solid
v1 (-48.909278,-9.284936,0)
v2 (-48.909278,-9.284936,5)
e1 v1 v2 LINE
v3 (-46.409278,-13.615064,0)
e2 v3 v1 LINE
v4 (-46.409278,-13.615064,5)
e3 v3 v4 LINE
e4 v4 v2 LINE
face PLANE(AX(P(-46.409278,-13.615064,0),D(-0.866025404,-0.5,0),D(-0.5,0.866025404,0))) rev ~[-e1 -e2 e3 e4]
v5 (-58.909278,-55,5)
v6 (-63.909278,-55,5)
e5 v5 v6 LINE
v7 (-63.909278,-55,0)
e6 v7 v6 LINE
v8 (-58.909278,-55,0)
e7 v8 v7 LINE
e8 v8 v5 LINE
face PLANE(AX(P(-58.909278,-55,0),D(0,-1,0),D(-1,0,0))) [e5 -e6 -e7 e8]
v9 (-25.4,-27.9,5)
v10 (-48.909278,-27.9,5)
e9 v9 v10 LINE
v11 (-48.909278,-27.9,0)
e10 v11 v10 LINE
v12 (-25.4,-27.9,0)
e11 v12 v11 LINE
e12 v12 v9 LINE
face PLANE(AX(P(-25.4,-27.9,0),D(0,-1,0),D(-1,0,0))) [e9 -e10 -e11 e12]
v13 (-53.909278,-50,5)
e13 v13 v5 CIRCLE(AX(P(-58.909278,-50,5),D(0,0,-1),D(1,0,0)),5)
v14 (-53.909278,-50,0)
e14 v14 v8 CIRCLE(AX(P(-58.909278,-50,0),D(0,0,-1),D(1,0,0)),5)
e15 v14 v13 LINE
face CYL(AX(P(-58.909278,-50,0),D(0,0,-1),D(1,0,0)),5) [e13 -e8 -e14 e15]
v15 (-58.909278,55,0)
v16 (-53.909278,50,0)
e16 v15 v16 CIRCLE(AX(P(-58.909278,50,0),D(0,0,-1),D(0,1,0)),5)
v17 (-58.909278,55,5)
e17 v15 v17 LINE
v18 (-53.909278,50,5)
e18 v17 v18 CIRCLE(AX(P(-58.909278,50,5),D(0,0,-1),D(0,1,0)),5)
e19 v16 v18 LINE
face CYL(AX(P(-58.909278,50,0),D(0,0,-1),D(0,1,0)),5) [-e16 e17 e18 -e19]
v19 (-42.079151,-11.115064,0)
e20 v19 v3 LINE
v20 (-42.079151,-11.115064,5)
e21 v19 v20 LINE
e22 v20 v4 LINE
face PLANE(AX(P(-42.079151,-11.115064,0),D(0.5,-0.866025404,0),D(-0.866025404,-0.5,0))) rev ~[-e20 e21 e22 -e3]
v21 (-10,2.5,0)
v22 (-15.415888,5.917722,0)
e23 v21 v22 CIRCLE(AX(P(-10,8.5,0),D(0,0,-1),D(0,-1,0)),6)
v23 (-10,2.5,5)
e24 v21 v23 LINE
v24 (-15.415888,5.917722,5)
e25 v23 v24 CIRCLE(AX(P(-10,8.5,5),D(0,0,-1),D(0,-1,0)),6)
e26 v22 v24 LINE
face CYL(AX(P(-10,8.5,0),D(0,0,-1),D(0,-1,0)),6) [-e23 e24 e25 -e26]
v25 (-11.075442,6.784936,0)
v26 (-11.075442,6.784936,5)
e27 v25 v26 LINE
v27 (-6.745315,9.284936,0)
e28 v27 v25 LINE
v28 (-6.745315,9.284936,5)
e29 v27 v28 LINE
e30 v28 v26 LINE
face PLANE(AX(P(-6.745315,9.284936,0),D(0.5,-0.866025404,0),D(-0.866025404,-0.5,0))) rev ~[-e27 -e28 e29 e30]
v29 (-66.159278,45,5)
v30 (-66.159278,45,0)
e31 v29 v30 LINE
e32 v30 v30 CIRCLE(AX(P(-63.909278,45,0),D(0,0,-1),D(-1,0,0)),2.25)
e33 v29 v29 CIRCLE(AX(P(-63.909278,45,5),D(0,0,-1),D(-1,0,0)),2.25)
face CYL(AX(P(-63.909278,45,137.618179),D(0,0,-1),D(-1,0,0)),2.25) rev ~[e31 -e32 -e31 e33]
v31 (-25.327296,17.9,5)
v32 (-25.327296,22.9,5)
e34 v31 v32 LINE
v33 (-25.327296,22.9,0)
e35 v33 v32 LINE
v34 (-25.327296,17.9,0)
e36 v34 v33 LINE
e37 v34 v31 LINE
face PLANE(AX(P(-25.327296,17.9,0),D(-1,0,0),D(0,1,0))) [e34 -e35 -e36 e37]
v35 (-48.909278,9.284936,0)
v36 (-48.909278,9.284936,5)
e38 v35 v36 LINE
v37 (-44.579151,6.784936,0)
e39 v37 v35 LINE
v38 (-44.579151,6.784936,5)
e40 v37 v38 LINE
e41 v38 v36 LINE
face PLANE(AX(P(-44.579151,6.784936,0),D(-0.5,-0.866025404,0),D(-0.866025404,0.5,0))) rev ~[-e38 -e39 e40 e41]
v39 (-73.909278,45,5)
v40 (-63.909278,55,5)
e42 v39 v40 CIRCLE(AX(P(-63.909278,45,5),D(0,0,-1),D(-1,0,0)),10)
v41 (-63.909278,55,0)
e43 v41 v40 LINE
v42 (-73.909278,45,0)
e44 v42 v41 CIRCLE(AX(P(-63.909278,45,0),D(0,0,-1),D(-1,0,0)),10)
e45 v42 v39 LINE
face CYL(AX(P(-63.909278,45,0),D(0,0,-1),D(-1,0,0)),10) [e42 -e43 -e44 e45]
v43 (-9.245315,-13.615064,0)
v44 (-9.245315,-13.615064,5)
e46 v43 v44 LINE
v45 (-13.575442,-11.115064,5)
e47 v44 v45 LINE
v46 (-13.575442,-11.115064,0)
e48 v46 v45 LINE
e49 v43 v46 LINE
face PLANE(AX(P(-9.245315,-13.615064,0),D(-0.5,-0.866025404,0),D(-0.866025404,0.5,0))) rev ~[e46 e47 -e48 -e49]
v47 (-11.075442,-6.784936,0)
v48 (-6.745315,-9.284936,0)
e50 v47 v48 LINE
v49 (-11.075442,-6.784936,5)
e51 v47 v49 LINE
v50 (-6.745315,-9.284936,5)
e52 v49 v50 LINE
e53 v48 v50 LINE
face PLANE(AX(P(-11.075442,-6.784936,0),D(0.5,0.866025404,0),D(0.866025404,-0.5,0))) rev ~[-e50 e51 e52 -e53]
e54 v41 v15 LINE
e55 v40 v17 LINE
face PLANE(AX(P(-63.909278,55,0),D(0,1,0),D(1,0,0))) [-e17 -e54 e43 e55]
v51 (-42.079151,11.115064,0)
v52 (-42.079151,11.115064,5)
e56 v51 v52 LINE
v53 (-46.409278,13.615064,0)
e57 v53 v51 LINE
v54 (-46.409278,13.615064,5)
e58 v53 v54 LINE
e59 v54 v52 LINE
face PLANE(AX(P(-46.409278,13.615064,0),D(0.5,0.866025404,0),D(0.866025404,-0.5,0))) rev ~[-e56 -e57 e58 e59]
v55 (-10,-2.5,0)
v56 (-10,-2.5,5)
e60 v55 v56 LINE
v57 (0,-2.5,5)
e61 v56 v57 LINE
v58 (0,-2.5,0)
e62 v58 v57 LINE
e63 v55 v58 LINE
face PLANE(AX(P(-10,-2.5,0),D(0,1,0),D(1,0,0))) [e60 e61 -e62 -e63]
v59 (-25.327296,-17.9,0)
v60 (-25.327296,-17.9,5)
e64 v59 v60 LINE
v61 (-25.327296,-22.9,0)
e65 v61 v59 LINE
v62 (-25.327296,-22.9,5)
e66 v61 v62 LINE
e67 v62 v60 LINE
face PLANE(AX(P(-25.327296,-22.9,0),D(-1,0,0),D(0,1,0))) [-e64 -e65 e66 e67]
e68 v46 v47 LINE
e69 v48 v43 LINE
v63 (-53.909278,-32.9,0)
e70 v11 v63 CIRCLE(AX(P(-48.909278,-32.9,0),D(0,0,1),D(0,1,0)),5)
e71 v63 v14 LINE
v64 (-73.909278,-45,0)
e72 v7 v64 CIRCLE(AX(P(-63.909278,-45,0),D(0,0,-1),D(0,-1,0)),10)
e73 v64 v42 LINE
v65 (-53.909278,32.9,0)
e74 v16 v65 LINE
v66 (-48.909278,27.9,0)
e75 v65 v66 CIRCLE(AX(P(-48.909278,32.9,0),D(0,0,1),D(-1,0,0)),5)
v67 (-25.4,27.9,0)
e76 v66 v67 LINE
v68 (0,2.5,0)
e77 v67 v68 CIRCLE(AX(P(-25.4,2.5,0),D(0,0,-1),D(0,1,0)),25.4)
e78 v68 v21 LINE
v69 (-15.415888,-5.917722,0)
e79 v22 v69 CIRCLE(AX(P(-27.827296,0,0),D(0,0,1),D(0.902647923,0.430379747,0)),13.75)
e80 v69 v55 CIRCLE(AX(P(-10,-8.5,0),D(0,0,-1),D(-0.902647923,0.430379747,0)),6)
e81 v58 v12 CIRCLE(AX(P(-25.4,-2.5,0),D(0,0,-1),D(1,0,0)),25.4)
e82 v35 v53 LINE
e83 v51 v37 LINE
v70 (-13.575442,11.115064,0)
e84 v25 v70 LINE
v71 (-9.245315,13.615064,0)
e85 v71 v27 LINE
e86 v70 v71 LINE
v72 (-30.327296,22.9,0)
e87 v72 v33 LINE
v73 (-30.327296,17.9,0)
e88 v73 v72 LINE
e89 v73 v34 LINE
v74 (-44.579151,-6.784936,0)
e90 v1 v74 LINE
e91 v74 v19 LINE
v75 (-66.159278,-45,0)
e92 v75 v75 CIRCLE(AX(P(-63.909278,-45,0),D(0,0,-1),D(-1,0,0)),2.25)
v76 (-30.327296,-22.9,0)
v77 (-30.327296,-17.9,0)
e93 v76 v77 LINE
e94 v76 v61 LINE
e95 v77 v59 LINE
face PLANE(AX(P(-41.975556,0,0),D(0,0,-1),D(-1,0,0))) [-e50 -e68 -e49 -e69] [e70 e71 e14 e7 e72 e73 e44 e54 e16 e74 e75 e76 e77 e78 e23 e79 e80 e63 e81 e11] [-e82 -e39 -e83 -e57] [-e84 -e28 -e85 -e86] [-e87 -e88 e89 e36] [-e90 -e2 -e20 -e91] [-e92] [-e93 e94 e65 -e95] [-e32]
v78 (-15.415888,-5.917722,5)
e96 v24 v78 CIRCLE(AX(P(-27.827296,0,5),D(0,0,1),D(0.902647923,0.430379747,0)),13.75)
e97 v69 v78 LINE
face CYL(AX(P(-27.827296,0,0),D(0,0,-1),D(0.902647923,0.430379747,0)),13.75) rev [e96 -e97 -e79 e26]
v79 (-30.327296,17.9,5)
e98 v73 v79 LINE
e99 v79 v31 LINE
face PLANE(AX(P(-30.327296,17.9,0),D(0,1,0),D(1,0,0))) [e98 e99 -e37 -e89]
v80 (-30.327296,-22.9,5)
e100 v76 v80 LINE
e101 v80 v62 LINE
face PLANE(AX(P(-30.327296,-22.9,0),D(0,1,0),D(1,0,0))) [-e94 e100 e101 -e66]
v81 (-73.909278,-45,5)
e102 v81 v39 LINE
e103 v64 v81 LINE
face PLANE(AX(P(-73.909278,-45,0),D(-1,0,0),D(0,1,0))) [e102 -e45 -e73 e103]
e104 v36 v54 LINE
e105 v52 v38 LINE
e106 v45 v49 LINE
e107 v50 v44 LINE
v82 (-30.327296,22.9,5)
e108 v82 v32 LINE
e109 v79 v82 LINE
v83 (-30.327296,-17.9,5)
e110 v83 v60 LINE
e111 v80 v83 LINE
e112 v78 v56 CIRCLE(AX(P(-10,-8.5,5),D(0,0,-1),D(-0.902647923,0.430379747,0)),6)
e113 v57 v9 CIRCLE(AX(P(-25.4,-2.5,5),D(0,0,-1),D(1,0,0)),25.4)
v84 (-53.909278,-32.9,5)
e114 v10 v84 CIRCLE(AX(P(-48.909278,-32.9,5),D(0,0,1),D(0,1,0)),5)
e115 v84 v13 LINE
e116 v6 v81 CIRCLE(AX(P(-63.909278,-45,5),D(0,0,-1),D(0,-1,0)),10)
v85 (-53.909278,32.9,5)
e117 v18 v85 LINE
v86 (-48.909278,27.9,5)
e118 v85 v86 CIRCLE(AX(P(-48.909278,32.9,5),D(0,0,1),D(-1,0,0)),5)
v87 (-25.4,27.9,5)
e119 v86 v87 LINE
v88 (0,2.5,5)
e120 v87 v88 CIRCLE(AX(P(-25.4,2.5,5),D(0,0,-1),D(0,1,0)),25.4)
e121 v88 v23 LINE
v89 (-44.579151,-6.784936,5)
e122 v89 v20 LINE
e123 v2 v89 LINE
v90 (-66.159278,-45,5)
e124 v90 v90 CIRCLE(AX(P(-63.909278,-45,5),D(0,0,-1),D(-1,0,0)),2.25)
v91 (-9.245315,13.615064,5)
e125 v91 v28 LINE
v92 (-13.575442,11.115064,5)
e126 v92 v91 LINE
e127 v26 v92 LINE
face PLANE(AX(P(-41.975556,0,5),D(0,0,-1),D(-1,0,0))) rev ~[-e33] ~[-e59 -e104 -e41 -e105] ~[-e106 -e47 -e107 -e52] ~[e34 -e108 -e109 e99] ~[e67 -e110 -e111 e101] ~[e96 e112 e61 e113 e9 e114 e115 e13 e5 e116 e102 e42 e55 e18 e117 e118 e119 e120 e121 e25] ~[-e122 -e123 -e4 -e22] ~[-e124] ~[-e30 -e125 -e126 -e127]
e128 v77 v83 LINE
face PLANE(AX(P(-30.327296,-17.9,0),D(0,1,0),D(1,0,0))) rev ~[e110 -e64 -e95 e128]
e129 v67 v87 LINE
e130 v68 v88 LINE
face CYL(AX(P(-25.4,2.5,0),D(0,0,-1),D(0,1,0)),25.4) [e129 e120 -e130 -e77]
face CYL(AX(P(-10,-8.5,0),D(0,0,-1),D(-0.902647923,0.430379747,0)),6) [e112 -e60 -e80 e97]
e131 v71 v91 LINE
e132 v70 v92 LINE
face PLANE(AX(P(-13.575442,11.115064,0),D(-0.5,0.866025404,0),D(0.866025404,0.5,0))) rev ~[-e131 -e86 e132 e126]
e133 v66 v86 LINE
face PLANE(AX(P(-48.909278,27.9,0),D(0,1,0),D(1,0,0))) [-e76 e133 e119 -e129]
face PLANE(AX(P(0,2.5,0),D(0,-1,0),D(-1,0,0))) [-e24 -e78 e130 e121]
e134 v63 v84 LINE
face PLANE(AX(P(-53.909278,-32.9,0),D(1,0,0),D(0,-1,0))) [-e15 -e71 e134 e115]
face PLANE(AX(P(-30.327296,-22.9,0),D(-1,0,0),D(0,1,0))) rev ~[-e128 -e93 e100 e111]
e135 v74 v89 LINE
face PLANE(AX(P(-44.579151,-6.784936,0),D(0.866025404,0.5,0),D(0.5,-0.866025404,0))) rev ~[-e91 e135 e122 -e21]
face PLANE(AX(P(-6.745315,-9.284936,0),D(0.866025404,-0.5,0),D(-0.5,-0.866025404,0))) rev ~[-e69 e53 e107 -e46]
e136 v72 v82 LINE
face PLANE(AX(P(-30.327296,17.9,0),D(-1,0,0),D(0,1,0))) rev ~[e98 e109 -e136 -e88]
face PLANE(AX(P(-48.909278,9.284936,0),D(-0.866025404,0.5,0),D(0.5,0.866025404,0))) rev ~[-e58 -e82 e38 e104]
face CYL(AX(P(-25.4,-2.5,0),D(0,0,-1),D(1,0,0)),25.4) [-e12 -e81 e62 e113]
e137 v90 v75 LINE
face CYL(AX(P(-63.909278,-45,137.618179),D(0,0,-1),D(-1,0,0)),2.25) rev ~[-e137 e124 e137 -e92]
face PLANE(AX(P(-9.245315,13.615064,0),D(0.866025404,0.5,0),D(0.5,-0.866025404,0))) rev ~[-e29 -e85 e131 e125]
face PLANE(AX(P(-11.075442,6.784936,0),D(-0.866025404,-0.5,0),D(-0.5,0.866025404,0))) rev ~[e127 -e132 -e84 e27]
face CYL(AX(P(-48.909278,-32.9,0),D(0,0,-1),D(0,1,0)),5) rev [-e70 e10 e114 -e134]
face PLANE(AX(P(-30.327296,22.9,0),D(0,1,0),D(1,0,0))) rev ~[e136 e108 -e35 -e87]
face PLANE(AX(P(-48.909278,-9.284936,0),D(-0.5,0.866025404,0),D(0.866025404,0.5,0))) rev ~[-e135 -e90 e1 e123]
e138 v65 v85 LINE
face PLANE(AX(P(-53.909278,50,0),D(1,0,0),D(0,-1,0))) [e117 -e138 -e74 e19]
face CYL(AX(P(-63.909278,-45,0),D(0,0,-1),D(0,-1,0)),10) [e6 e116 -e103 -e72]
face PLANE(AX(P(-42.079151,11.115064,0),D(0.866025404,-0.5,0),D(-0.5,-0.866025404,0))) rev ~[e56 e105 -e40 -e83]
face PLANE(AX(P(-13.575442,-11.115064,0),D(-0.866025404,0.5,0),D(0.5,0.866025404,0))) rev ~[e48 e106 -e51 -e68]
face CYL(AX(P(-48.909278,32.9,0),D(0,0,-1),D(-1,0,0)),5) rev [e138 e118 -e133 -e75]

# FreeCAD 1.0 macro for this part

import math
import FreeCAD as App
import Part
import Sketcher
from FreeCAD import Vector
Q = App.Units.Quantity


def add_polygon(sketch, points):
    """Adds a closed chain of lines whose ends are joined by coincident constraints."""
    first, n = sketch.GeometryCount, len(points)
    for a, b in zip(points, points[1:] + points[:1]):
        sketch.addGeometry(Part.LineSegment(App.Vector(*a, 0), App.Vector(*b, 0)), False)
    for i in range(n):
        sketch.addConstraint(Sketcher.Constraint("Coincident", first + i, 2, first + (i + 1) % n, 1))

doc = App.newDocument("Part")
body = doc.addObject("PartDesign::Body", "Body")

# Sketch on XY plane
sketch1 = body.newObject("Sketcher::SketchObject", "Sketch")
sketch1.AttachmentSupport = (doc.getObject("XY_Plane"), [""])
sketch1.MapMode = "FlatFace"
sketch1.addGeometry(Part.LineSegment(Vector(-63.909278, -55, 0), Vector(-58.909278, -55, 0)), False)  # 0
sketch1.addGeometry(Part.ArcOfCircle(Part.Circle(Vector(-58.909278, -50, 0), Vector(0, 0, 1), 5), math.radians(-90), math.radians(0)), False)  # 1
sketch1.addGeometry(Part.LineSegment(Vector(-53.909278, -50, 0), Vector(-53.909278, -32.9, 0)), False)  # 2
sketch1.addGeometry(Part.ArcOfCircle(Part.Circle(Vector(-48.909278, -32.9, 0), Vector(0, 0, 1), 5), math.radians(90), math.radians(180)), False)  # 3
sketch1.addGeometry(Part.LineSegment(Vector(-48.909278, -27.9, 0), Vector(-25.4, -27.9, 0)), False)  # 4
sketch1.addGeometry(Part.ArcOfCircle(Part.Circle(Vector(-25.4, -2.5, 0), Vector(0, 0, 1), 25.4), math.radians(-90), math.radians(0)), False)  # 5
sketch1.addGeometry(Part.LineSegment(Vector(0, -2.5, 0), Vector(-10, -2.5, 0)), False)  # 6
sketch1.addGeometry(Part.ArcOfCircle(Part.Circle(Vector(-10, -8.5, 0), Vector(0, 0, 1), 6), math.radians(90), math.radians(154.508338)), False)  # 7
sketch1.addGeometry(Part.ArcOfCircle(Part.Circle(Vector(-27.827296, 0, 0), Vector(0, 0, 1), 13.75), math.radians(25.491662), math.radians(334.508338)), False)  # 8
sketch1.addGeometry(Part.ArcOfCircle(Part.Circle(Vector(-10, 8.5, 0), Vector(0, 0, 1), 6), math.radians(-154.508338), math.radians(-90)), False)  # 9
sketch1.addGeometry(Part.LineSegment(Vector(-10, 2.5, 0), Vector(0, 2.5, 0)), False)  # 10
sketch1.addGeometry(Part.ArcOfCircle(Part.Circle(Vector(-25.4, 2.5, 0), Vector(0, 0, 1), 25.4), math.radians(0), math.radians(90)), False)  # 11
sketch1.addGeometry(Part.LineSegment(Vector(-25.4, 27.9, 0), Vector(-48.909278, 27.9, 0)), False)  # 12
sketch1.addGeometry(Part.ArcOfCircle(Part.Circle(Vector(-48.909278, 32.9, 0), Vector(0, 0, 1), 5), math.radians(180), math.radians(270)), False)  # 13
sketch1.addGeometry(Part.LineSegment(Vector(-53.909278, 32.9, 0), Vector(-53.909278, 50, 0)), False)  # 14
sketch1.addGeometry(Part.ArcOfCircle(Part.Circle(Vector(-58.909278, 50, 0), Vector(0, 0, 1), 5), math.radians(0), math.radians(90)), False)  # 15
sketch1.addGeometry(Part.LineSegment(Vector(-58.909278, 55, 0), Vector(-63.909278, 55, 0)), False)  # 16
sketch1.addGeometry(Part.ArcOfCircle(Part.Circle(Vector(-63.909278, 45, 0), Vector(0, 0, 1), 10), math.radians(90), math.radians(180)), False)  # 17
sketch1.addGeometry(Part.LineSegment(Vector(-73.909278, 45, 0), Vector(-73.909278, -45, 0)), False)  # 18
sketch1.addGeometry(Part.ArcOfCircle(Part.Circle(Vector(-63.909278, -45, 0), Vector(0, 0, 1), 10), math.radians(180), math.radians(270)), False)  # 19
add_polygon(sketch1, [(-6.745315, -9.284936), (-9.245315, -13.615064), (-13.575442, -11.115064), (-11.075442, -6.784936)])  # lines 20-23
add_polygon(sketch1, [(-30.327296, -22.9), (-30.327296, -17.9), (-25.327296, -17.9), (-25.327296, -22.9)])  # lines 24-27
add_polygon(sketch1, [(-46.409278, -13.615064), (-48.909278, -9.284936), (-44.579151, -6.784936), (-42.079151, -11.115064)])  # lines 28-31
add_polygon(sketch1, [(-9.245315, 13.615064), (-6.745315, 9.284936), (-11.075442, 6.784936), (-13.575442, 11.115064)])  # lines 32-35
add_polygon(sketch1, [(-48.909278, 9.284936), (-46.409278, 13.615064), (-42.079151, 11.115064), (-44.579151, 6.784936)])  # lines 36-39
add_polygon(sketch1, [(-30.327296, 17.9), (-30.327296, 22.9), (-25.327296, 22.9), (-25.327296, 17.9)])  # lines 40-43
sketch1.addConstraint(Sketcher.Constraint("Tangent", 0, 2, 1, 1))
sketch1.addConstraint(Sketcher.Constraint("Tangent", 1, 2, 2, 1))
sketch1.addConstraint(Sketcher.Constraint("Tangent", 2, 2, 3, 2))
sketch1.addConstraint(Sketcher.Constraint("Tangent", 3, 1, 4, 1))
sketch1.addConstraint(Sketcher.Constraint("Tangent", 4, 2, 5, 1))
sketch1.addConstraint(Sketcher.Constraint("Coincident", 5, 2, 6, 1))
sketch1.addConstraint(Sketcher.Constraint("Tangent", 6, 2, 7, 1))
sketch1.addConstraint(Sketcher.Constraint("Tangent", 7, 2, 8, 2))
sketch1.addConstraint(Sketcher.Constraint("Tangent", 8, 1, 9, 1))
sketch1.addConstraint(Sketcher.Constraint("Tangent", 9, 2, 10, 1))
sketch1.addConstraint(Sketcher.Constraint("Coincident", 10, 2, 11, 1))
sketch1.addConstraint(Sketcher.Constraint("Tangent", 11, 2, 12, 1))
sketch1.addConstraint(Sketcher.Constraint("Tangent", 12, 2, 13, 2))
sketch1.addConstraint(Sketcher.Constraint("Tangent", 13, 1, 14, 1))
sketch1.addConstraint(Sketcher.Constraint("Tangent", 14, 2, 15, 1))
sketch1.addConstraint(Sketcher.Constraint("Tangent", 15, 2, 16, 1))
sketch1.addConstraint(Sketcher.Constraint("Tangent", 16, 2, 17, 1))
sketch1.addConstraint(Sketcher.Constraint("Tangent", 17, 2, 18, 1))
sketch1.addConstraint(Sketcher.Constraint("Tangent", 18, 2, 19, 1))
sketch1.addConstraint(Sketcher.Constraint("Tangent", 19, 2, 0, 1))
sketch1.addConstraint(Sketcher.Constraint("Horizontal", 0))
sketch1.addConstraint(Sketcher.Constraint("Vertical", 2))
sketch1.addConstraint(Sketcher.Constraint("Horizontal", 4))
sketch1.addConstraint(Sketcher.Constraint("Horizontal", 6))
sketch1.addConstraint(Sketcher.Constraint("Horizontal", 10))
sketch1.addConstraint(Sketcher.Constraint("Horizontal", 12))
sketch1.addConstraint(Sketcher.Constraint("Vertical", 14))
sketch1.addConstraint(Sketcher.Constraint("Horizontal", 16))
sketch1.addConstraint(Sketcher.Constraint("Vertical", 18))
sketch1.addConstraint(Sketcher.Constraint("Vertical", 24))
sketch1.addConstraint(Sketcher.Constraint("Horizontal", 25))
sketch1.addConstraint(Sketcher.Constraint("Vertical", 26))
sketch1.addConstraint(Sketcher.Constraint("Horizontal", 27))
sketch1.addConstraint(Sketcher.Constraint("Vertical", 40))
sketch1.addConstraint(Sketcher.Constraint("Horizontal", 41))
sketch1.addConstraint(Sketcher.Constraint("Vertical", 42))
sketch1.addConstraint(Sketcher.Constraint("Horizontal", 43))
sketch1.addConstraint(Sketcher.Constraint("Equal", 1, 3))
sketch1.addConstraint(Sketcher.Constraint("Equal", 7, 9))
sketch1.addConstraint(Sketcher.Constraint("Equal", 5, 11))
sketch1.addConstraint(Sketcher.Constraint("Equal", 3, 13))
sketch1.addConstraint(Sketcher.Constraint("Equal", 13, 15))
sketch1.addConstraint(Sketcher.Constraint("Equal", 17, 19))
sketch1.addConstraint(Sketcher.Constraint("Symmetric", 5, 2, 10, 2, -1, 1))
sketch1.addConstraint(Sketcher.Constraint("Symmetric", 5, 3, 11, 3, -1))
sketch1.addConstraint(Sketcher.Constraint("Symmetric", 1, 3, 15, 3, -1))
sketch1.addConstraint(Sketcher.Constraint("Symmetric", 23, 2, 32, 2, -1))
sketch1.addConstraint(Sketcher.Constraint("Symmetric", 22, 2, 33, 2, -1))
sketch1.addConstraint(Sketcher.Constraint("Symmetric", 21, 2, 34, 2, -1))
sketch1.addConstraint(Sketcher.Constraint("Symmetric", 20, 2, 35, 2, -1))
sketch1.addConstraint(Sketcher.Constraint("Symmetric", 31, 2, 36, 2, -1))
sketch1.addConstraint(Sketcher.Constraint("Symmetric", 30, 2, 37, 2, -1))
sketch1.addConstraint(Sketcher.Constraint("Symmetric", 29, 2, 38, 2, -1))
sketch1.addConstraint(Sketcher.Constraint("Symmetric", 28, 2, 39, 2, -1))
sketch1.addConstraint(Sketcher.Constraint("Symmetric", 27, 2, 40, 2, -1))
sketch1.addConstraint(Sketcher.Constraint("Symmetric", 25, 2, 42, 2, -1))
sketch1.addConstraint(Sketcher.Constraint("PointOnObject", 8, 3, -1))
sketch1.addConstraint(Sketcher.Constraint("Perpendicular", 20, 21))
sketch1.addConstraint(Sketcher.Constraint("Perpendicular", 21, 22))
sketch1.addConstraint(Sketcher.Constraint("Perpendicular", 22, 23))
sketch1.addConstraint(Sketcher.Constraint("Perpendicular", 28, 29))
sketch1.addConstraint(Sketcher.Constraint("Perpendicular", 29, 30))
sketch1.addConstraint(Sketcher.Constraint("Perpendicular", 30, 31))
sketch1.addConstraint(Sketcher.Constraint("Perpendicular", 31, 32))
sketch1.addConstraint(Sketcher.Constraint("Horizontal", 11, 3, 9, 2))
sketch1.addConstraint(Sketcher.Constraint("Horizontal", 23, 2, 28, 2))
sketch1.addConstraint(Sketcher.Constraint("Horizontal", 22, 2, 29, 2))
sketch1.addConstraint(Sketcher.Constraint("Horizontal", 21, 2, 30, 2))
sketch1.addConstraint(Sketcher.Constraint("Vertical", 12, 2, 28, 2))
sketch1.addConstraint(Sketcher.Constraint("Equal", 16, 25))
sketch1.addConstraint(Sketcher.Constraint("Equal", 43, 24))
sketch1.addConstraint(Sketcher.Constraint("Equal", 20, 21))
sketch1.addConstraint(Sketcher.Constraint("Radius", 1, 5.0))
sketch1.addConstraint(Sketcher.Constraint("Radius", 7, 6.0))
sketch1.addConstraint(Sketcher.Constraint("Radius", 17, 10.0))
sketch1.addConstraint(Sketcher.Constraint("Radius", 5, 25.4))
sketch1.addConstraint(Sketcher.Constraint("DistanceX", 0, 1, 0, 2, 5.0))
sketch1.addConstraint(Sketcher.Constraint("DistanceX", 6, 2, 6, 1, 10.0))
sketch1.addConstraint(Sketcher.Constraint("DistanceY", 18, 2, 18, 1, 90.0))
sketch1.addConstraint(Sketcher.Constraint("Angle", 20, Q("-120 deg")))
sketch1.addConstraint(Sketcher.Constraint("Radius", 8, 13.75))
sketch1.addConstraint(Sketcher.Constraint("Distance", 20, 5.0))
sketch1.addConstraint(Sketcher.Constraint("DistanceY", 2, 1, 2, 2, 17.1))
sketch1.addConstraint(Sketcher.Constraint("DistanceY", 4, 2, 24, 2, 10.0))
sketch1.addConstraint(Sketcher.Constraint("DistanceX", 24, 2, 8, 3, 2.5))
sketch1.addConstraint(Sketcher.Constraint("DistanceY", 29, 2, 36, 2, 20.4))
sketch1.addConstraint(Sketcher.Constraint("DistanceX", 4, 1, 4, 2, 23.509278))
sketch1.addConstraint(Sketcher.Constraint("DistanceX", 21, 2, -1, 1, 13.575442))
pad1 = body.newObject("PartDesign::Pad", "Pad")
pad1.Profile = sketch1
pad1.Length = 5

# Sketch on XY plane
sketch2 = body.newObject("Sketcher::SketchObject", "Sketch001")
sketch2.AttachmentSupport = (doc.getObject("XY_Plane"), [""])
sketch2.MapMode = "FlatFace"
sketch2.AttachmentOffset = App.Placement(Vector(0, 0, 5), App.Rotation())
sketch2.addGeometry(Part.Circle(Vector(-63.909278, 45, 0), Vector(0, 0, 1), 2.25), False)
sketch2.addGeometry(Part.Circle(Vector(-63.909278, -45, 0), Vector(0, 0, 1), 2.25), False)
sketch2.addConstraint(Sketcher.Constraint("Equal", 0, 1))
sketch2.addConstraint(Sketcher.Constraint("Symmetric", 0, 3, 1, 3, -1))
sketch2.addConstraint(Sketcher.Constraint("Diameter", 0, 4.5))
sketch2.addConstraint(Sketcher.Constraint("DistanceY", -1, 1, 0, 3, 45.0))
sketch2.addConstraint(Sketcher.Constraint("DistanceX", 0, 3, -1, 1, 63.909278))
doc.recompute()
hole = body.newObject("PartDesign::Hole", "Hole")
hole.Profile = sketch2
hole.ThreadType = "None"
hole.Diameter = 4.5
hole.DepthType = "ThroughAll"

doc.recompute()
